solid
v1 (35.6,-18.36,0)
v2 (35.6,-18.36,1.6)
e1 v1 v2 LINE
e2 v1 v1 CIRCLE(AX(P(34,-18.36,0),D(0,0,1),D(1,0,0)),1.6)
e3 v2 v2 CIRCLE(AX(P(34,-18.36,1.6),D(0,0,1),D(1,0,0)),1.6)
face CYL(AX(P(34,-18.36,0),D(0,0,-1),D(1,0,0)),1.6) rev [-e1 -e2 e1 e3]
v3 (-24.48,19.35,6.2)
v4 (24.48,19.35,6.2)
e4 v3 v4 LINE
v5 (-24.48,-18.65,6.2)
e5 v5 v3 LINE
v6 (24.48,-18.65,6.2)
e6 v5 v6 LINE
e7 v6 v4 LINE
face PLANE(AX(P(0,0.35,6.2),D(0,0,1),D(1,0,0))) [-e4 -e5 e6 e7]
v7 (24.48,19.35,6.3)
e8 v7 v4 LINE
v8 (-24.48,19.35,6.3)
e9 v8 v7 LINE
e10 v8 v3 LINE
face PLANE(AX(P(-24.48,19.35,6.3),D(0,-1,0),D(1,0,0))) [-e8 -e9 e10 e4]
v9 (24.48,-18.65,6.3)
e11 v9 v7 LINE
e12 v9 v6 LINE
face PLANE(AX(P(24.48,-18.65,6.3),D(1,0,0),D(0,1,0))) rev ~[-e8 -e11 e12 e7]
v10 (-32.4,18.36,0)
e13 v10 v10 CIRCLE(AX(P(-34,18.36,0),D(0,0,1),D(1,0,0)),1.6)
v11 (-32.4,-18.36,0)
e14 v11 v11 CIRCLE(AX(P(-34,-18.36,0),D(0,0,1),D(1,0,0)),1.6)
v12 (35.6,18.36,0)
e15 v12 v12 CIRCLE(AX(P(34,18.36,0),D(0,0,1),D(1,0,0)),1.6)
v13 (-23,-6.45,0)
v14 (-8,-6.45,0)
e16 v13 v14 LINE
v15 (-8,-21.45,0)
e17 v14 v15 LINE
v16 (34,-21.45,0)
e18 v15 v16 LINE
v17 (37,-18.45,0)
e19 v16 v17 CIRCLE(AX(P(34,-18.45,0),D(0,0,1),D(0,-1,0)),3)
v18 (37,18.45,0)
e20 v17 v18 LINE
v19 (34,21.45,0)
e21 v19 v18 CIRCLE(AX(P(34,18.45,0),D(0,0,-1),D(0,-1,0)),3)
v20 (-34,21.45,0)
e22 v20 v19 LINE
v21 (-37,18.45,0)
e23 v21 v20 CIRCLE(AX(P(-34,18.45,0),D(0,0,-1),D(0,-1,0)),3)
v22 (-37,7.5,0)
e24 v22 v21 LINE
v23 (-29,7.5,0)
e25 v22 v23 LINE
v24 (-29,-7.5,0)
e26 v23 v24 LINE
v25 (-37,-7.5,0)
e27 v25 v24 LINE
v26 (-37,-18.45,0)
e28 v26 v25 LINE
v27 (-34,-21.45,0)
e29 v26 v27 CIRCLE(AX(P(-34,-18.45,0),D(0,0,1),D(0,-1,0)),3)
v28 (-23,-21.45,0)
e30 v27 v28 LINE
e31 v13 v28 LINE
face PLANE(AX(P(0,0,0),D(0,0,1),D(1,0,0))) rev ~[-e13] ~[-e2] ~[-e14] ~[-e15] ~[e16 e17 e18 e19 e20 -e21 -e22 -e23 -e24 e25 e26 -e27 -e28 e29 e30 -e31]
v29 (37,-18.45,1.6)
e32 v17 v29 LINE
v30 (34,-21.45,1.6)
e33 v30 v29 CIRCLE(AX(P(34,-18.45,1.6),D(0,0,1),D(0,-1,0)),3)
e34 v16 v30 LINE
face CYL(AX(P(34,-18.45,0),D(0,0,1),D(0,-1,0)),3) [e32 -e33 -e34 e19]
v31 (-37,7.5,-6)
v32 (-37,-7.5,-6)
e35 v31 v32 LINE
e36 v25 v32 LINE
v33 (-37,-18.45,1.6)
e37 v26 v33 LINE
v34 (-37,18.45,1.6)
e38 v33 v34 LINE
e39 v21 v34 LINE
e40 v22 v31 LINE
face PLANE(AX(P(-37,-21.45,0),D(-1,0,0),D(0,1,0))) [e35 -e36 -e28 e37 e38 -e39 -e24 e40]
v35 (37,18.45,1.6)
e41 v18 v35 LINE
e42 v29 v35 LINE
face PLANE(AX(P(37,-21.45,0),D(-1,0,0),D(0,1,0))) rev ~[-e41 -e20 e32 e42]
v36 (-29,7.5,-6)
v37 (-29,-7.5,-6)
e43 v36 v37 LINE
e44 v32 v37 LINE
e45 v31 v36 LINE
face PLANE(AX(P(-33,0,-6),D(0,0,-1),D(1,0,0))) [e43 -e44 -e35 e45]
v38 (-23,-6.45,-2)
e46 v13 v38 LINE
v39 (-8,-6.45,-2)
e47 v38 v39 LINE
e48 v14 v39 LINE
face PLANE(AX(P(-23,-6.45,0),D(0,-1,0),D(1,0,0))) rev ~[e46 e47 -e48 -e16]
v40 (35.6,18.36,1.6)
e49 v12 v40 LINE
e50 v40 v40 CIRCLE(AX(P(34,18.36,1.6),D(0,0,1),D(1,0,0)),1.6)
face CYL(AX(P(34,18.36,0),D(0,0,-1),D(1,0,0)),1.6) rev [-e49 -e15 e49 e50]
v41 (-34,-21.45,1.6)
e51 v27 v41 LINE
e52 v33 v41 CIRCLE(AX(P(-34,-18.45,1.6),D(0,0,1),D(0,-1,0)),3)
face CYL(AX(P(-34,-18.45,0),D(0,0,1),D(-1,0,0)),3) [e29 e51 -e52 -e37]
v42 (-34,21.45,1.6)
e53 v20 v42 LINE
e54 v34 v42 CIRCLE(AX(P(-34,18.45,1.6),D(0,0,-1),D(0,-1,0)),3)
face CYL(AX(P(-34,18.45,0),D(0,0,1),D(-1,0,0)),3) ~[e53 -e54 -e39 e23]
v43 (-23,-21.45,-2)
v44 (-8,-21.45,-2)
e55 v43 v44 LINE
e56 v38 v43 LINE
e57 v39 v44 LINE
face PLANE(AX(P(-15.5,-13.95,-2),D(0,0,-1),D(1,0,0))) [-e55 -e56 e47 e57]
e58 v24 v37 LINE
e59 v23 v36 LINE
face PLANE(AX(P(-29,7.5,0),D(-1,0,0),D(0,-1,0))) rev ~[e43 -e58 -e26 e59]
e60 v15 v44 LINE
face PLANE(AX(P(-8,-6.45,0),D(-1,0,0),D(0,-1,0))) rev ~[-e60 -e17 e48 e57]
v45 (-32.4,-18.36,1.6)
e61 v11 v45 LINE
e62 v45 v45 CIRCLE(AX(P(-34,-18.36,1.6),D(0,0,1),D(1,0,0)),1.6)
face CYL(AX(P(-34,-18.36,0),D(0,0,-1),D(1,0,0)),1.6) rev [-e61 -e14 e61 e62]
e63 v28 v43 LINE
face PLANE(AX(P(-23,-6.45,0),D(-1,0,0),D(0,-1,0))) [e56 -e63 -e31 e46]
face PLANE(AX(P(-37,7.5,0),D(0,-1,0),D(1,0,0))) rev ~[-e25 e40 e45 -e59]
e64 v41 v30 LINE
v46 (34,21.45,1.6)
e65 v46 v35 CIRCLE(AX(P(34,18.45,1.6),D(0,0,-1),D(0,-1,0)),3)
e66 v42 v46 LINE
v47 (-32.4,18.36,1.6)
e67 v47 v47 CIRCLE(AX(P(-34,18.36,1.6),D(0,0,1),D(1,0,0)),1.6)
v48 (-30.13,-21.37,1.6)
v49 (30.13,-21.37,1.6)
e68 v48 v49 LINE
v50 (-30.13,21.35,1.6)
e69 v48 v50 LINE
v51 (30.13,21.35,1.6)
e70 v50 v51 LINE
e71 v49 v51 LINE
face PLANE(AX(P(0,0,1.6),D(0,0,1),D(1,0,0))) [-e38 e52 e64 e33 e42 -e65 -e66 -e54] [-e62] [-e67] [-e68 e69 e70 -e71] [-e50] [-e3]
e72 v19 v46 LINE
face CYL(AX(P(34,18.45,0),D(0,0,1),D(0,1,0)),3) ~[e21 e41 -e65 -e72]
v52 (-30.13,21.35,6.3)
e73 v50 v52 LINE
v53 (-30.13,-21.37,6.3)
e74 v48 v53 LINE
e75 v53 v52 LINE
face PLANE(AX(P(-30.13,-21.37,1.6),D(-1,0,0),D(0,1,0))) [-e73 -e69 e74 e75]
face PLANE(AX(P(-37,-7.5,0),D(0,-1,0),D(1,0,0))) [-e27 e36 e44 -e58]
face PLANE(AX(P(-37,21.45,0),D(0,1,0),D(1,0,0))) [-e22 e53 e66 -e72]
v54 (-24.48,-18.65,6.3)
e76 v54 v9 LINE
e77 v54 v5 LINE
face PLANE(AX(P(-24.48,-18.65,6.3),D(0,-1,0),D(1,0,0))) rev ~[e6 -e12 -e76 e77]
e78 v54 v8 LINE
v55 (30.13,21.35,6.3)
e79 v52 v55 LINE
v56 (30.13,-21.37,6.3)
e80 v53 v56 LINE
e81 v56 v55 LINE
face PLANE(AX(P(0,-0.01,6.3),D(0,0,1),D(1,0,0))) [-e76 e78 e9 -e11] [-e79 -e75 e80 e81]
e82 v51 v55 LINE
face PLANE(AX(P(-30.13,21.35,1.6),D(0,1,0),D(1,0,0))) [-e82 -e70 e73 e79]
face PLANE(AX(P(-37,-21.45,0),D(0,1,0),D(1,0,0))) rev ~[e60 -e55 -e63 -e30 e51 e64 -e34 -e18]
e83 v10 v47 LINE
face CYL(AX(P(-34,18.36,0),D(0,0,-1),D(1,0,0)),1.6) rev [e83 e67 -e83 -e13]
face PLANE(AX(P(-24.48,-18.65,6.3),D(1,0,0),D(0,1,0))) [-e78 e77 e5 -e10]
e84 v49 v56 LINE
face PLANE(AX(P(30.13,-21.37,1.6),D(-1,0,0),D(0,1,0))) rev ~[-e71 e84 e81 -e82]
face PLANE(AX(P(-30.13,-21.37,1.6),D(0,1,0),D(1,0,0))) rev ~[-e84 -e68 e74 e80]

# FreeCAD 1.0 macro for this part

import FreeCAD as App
import Part
import Sketcher
from FreeCAD import Vector


def edges_at(feature, points):
    """Names of the edges that pass closest to the given points."""
    edges = feature.Shape.Edges
    near = lambda p: min(range(len(edges)), key=lambda i: edges[i].distToShape(Part.Vertex(*p))[0])
    return sorted({f"Edge{near(p) + 1}" for p in points})


def add_polygon(sketch, points):
    """Adds a closed chain of lines whose ends are joined by coincident constraints."""
    first, n = sketch.GeometryCount, len(points)
    for a, b in zip(points, points[1:] + points[:1]):
        sketch.addGeometry(Part.LineSegment(App.Vector(*a, 0), App.Vector(*b, 0)), False)
    for i in range(n):
        sketch.addConstraint(Sketcher.Constraint("Coincident", first + i, 2, first + (i + 1) % n, 1))

doc = App.newDocument("Part")
body = doc.addObject("PartDesign::Body", "Body")

# Sketch on XY plane
sketch1 = body.newObject("Sketcher::SketchObject", "Sketch")
sketch1.AttachmentSupport = (doc.getObject("XY_Plane"), [""])
sketch1.MapMode = "FlatFace"
add_polygon(sketch1, [(-37, 21.45), (-37, -21.45), (37, -21.45), (37, 21.45)])  # lines 0-3
sketch1.addGeometry(Part.Circle(Vector(-34, -18.36, 0), Vector(0, 0, 1), 1.6), False)  # 4
sketch1.addGeometry(Part.Circle(Vector(34, -18.36, 0), Vector(0, 0, 1), 1.6), False)  # 5
sketch1.addGeometry(Part.Circle(Vector(-34, 18.36, 0), Vector(0, 0, 1), 1.6), False)  # 6
sketch1.addGeometry(Part.Circle(Vector(34, 18.36, 0), Vector(0, 0, 1), 1.6), False)  # 7
sketch1.addConstraint([
    Sketcher.Constraint("Vertical", 0),
    Sketcher.Constraint("Horizontal", 1),
    Sketcher.Constraint("Vertical", 2),
    Sketcher.Constraint("Horizontal", 3),
    Sketcher.Constraint("Equal", 4, 5),
    Sketcher.Constraint("Equal", 5, 6),
    Sketcher.Constraint("Equal", 6, 7),
    Sketcher.Constraint("Symmetric", 5, 3, 6, 3, -1, 1),
    Sketcher.Constraint("Symmetric", 4, 3, 7, 3, -1, 1),
    Sketcher.Constraint("Symmetric", 0, 2, 2, 2, -1, 1),
    Sketcher.Constraint("Symmetric", 4, 3, 5, 3, -2),
    Sketcher.Constraint("Diameter", 4, 3.2),
    Sketcher.Constraint("DistanceX", 1, 1, 1, 2, 74.0),
    Sketcher.Constraint("DistanceY", 0, 2, 0, 1, 42.9),
    Sketcher.Constraint("DistanceX", 4, 3, -1, 1, 34.0),
    Sketcher.Constraint("DistanceY", 4, 3, -1, 1, 18.36),
])
pad1 = body.newObject("PartDesign::Pad", "Pad")
pad1.Profile = sketch1
pad1.Length = 1.6

# Sketch on XY plane
sketch2 = body.newObject("Sketcher::SketchObject", "Sketch001")
sketch2.AttachmentSupport = (doc.getObject("XY_Plane"), [""])
sketch2.MapMode = "FlatFace"
sketch2.AttachmentOffset = App.Placement(Vector(0, 0, 1.6), App.Rotation())
add_polygon(sketch2, [(-30.13, 21.35), (-30.13, -21.37), (30.13, -21.37), (30.13, 21.35)])  # lines 0-3
sketch2.addConstraint([
    Sketcher.Constraint("Vertical", 0),
    Sketcher.Constraint("Horizontal", 1),
    Sketcher.Constraint("Vertical", 2),
    Sketcher.Constraint("Horizontal", 3),
    Sketcher.Constraint("DistanceX", 1, 1, 1, 2, 60.26),
    Sketcher.Constraint("DistanceY", 0, 2, 0, 1, 42.72),
    Sketcher.Constraint("DistanceX", 0, 2, -1, 1, 30.13),
    Sketcher.Constraint("DistanceY", 0, 2, -1, 1, 21.37),
])
pad2 = body.newObject("PartDesign::Pad", "Pad001")
pad2.Profile = sketch2
pad2.Length = 4.7

# Sketch on XY plane
sketch3 = body.newObject("Sketcher::SketchObject", "Sketch002")
sketch3.AttachmentSupport = (doc.getObject("XY_Plane"), [""])
sketch3.MapMode = "FlatFace"
sketch3.AttachmentOffset = App.Placement(Vector(0, 0, 6.3), App.Rotation())
add_polygon(sketch3, [(-24.48, 19.35), (-24.48, -18.65), (24.48, -18.65), (24.48, 19.35)])  # lines 0-3
sketch3.addConstraint([
    Sketcher.Constraint("Vertical", 0),
    Sketcher.Constraint("Horizontal", 1),
    Sketcher.Constraint("Vertical", 2),
    Sketcher.Constraint("Horizontal", 3),
    Sketcher.Constraint("DistanceY", 0, 2, 0, 1, 38.0),
    Sketcher.Constraint("DistanceX", 1, 1, 1, 2, 48.96),
    Sketcher.Constraint("DistanceX", 0, 2, -1, 1, 24.48),
    Sketcher.Constraint("DistanceY", 0, 2, -1, 1, 18.65),
])
pocket1 = body.newObject("PartDesign::Pocket", "Pocket")
pocket1.Profile = sketch3
pocket1.Length = 0.1

# Sketch on XY plane
sketch4 = body.newObject("Sketcher::SketchObject", "Sketch003")
sketch4.AttachmentSupport = (doc.getObject("XY_Plane"), [""])
sketch4.MapMode = "FlatFace"
add_polygon(sketch4, [(-23, -21.45), (-23, -6.45), (-8, -6.45), (-8, -21.45)])  # lines 0-3
sketch4.addConstraint([
    Sketcher.Constraint("Vertical", 0),
    Sketcher.Constraint("Horizontal", 1),
    Sketcher.Constraint("Vertical", 2),
    Sketcher.Constraint("Horizontal", 3),
    Sketcher.Constraint("Equal", 3, 0),
    Sketcher.Constraint("DistanceX", 1, 1, 1, 2, 15.0),
    Sketcher.Constraint("DistanceX", 0, 2, -1, 1, 23.0),
    Sketcher.Constraint("DistanceY", 0, 2, -1, 1, 6.45),
])
pad3 = body.newObject("PartDesign::Pad", "Pad002")
pad3.Profile = sketch4
pad3.Length = 2
pad3.Reversed = True

# Sketch on XY plane
sketch5 = body.newObject("Sketcher::SketchObject", "Sketch004")
sketch5.AttachmentSupport = (doc.getObject("XY_Plane"), [""])
sketch5.MapMode = "FlatFace"
add_polygon(sketch5, [(-37, -7.5), (-37, 7.5), (-29, 7.5), (-29, -7.5)])  # lines 0-3
sketch5.addConstraint([
    Sketcher.Constraint("Vertical", 0),
    Sketcher.Constraint("Horizontal", 1),
    Sketcher.Constraint("Vertical", 2),
    Sketcher.Constraint("Horizontal", 3),
    Sketcher.Constraint("DistanceX", 1, 1, 1, 2, 8.0),
    Sketcher.Constraint("DistanceY", 0, 1, 0, 2, 15.0),
    Sketcher.Constraint("DistanceX", 0, 2, -1, 1, 37.0),
    Sketcher.Constraint("DistanceY", -1, 1, 0, 2, 7.5),
])
pad4 = body.newObject("PartDesign::Pad", "Pad003")
pad4.Profile = sketch5
pad4.Length = 6
pad4.Reversed = True
doc.recompute()

fillet = body.newObject("PartDesign::Fillet", "Fillet")
fillet.Base = (pad4, edges_at(pad4, [
    (37, 21.45, 0.8),
    (37, -21.45, 0.8),
    (-37, -21.45, 0.8),
    (-37, 21.45, 0.8),
]))
fillet.Radius = 3

doc.recompute()
